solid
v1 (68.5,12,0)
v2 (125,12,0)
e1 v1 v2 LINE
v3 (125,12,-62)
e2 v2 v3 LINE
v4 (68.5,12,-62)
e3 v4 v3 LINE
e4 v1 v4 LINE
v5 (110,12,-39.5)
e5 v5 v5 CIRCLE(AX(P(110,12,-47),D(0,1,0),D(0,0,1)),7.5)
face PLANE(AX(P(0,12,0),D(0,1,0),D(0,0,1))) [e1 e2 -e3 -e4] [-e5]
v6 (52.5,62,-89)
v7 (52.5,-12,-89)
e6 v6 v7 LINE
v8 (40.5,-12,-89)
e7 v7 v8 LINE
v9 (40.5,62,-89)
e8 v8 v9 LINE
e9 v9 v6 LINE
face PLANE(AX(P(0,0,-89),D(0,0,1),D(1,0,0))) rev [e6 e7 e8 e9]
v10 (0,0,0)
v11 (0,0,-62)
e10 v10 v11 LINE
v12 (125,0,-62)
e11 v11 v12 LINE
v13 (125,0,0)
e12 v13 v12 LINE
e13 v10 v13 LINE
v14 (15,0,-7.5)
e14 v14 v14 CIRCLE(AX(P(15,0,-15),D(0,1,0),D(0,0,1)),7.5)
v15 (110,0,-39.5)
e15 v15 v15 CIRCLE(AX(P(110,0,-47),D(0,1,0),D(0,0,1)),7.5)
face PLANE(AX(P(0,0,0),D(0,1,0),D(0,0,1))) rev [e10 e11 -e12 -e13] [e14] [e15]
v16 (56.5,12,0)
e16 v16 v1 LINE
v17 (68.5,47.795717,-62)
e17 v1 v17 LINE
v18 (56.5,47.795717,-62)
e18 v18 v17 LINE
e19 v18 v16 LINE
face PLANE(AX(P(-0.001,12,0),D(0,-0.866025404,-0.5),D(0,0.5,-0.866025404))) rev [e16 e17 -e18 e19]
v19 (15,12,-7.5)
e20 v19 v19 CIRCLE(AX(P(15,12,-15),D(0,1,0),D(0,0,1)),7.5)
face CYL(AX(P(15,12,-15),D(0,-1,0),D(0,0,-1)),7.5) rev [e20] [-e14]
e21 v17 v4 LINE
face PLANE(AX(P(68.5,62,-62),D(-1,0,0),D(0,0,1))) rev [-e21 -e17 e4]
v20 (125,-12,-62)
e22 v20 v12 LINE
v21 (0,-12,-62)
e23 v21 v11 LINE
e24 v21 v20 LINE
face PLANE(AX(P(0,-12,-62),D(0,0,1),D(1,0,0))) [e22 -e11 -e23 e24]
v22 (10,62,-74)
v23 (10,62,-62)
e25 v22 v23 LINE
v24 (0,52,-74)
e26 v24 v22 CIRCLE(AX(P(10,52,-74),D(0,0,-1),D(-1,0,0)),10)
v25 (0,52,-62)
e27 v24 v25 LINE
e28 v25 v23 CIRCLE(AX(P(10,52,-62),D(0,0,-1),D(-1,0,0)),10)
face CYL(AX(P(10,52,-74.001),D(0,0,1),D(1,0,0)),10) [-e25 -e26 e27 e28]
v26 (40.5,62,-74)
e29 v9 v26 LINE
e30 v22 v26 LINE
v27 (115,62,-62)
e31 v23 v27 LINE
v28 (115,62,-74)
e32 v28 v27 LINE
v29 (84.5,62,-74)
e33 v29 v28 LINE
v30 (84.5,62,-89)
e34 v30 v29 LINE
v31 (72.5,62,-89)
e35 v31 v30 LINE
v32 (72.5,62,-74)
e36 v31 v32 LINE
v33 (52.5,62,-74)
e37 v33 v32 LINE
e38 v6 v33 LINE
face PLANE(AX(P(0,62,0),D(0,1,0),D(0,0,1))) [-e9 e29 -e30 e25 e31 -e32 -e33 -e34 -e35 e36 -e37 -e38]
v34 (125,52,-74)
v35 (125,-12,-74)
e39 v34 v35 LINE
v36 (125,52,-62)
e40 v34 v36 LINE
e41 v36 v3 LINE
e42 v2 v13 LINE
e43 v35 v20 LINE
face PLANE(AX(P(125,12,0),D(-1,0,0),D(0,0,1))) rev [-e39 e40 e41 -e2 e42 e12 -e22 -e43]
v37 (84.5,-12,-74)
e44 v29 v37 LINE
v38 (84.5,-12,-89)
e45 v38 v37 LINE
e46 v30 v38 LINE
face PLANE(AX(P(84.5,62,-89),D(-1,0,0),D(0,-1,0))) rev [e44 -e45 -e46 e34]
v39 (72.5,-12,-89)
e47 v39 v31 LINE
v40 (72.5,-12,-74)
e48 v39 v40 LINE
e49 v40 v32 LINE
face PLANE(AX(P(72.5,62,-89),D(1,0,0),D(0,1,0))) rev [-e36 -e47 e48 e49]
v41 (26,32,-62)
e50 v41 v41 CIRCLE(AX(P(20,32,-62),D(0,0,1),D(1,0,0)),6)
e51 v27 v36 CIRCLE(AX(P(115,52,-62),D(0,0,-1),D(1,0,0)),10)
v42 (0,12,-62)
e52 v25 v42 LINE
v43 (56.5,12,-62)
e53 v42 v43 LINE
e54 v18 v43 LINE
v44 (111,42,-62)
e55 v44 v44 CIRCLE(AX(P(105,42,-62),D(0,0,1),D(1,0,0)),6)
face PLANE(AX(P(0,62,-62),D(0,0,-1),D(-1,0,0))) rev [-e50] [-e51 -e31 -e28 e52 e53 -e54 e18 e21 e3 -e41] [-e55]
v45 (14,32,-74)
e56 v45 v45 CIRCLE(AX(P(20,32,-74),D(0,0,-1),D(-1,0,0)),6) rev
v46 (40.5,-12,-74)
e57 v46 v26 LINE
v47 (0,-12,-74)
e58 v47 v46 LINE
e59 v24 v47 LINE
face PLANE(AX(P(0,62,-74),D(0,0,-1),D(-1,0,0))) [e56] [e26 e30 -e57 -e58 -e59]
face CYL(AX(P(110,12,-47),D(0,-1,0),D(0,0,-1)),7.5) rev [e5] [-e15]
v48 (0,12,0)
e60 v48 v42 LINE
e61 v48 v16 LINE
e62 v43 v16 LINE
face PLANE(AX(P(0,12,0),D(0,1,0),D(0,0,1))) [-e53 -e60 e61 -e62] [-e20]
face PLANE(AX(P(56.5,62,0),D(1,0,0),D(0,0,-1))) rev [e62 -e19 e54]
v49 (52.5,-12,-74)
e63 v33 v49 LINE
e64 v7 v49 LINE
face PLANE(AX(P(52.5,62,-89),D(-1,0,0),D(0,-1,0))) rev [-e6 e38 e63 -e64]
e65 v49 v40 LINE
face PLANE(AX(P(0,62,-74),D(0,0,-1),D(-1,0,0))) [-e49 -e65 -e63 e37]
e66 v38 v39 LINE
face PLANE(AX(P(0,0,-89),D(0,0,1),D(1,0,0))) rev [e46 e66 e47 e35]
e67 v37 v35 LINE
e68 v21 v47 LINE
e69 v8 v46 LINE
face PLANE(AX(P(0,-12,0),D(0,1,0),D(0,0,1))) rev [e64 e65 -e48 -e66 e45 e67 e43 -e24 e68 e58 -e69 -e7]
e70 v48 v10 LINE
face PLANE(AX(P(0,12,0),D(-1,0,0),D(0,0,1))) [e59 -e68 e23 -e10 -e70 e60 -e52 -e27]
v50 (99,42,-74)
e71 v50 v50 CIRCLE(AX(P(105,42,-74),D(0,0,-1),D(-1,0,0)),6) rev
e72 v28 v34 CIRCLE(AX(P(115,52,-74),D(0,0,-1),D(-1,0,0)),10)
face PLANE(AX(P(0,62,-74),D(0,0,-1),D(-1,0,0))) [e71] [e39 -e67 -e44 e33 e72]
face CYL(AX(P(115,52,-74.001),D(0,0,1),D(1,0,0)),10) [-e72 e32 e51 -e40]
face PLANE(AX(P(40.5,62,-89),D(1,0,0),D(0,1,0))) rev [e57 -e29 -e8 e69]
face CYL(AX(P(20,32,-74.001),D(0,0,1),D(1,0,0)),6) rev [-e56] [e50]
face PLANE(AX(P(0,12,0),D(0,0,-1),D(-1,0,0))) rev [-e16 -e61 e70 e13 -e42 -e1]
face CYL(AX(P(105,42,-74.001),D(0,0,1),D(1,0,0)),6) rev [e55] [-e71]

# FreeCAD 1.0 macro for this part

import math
import FreeCAD as App
import Part
import Sketcher
from FreeCAD import Vector
Q = App.Units.Quantity

doc = App.newDocument("Part")
body = doc.addObject("PartDesign::Body", "Body")

# Sketch on XZ plane
sketch1 = body.newObject("Sketcher::SketchObject", "Sketch")
sketch1.AttachmentSupport = (doc.getObject("XZ_Plane"), [""])
sketch1.MapMode = "FlatFace"
sketch1.addGeometry([
    Part.LineSegment(Vector(0, -62, 0), Vector(0, 0, 0)),  # 0
    Part.LineSegment(Vector(0, 0, 0), Vector(125, 0, 0)),  # 1
    Part.LineSegment(Vector(125, 0, 0), Vector(125, -62, 0)),  # 2
    Part.LineSegment(Vector(125, -62, 0), Vector(0, -62, 0)),  # 3
    Part.Circle(Vector(15, -15, 0), Vector(0, 0, 1), 7.5),  # 4
    Part.Circle(Vector(110, -47, 0), Vector(0, 0, 1), 7.5),  # 5
], False)
sketch1.addConstraint([
    Sketcher.Constraint("Coincident", 0, 2, 1, 1),
    Sketcher.Constraint("Coincident", 1, 2, 2, 1),
    Sketcher.Constraint("Coincident", 2, 2, 3, 1),
    Sketcher.Constraint("Coincident", 3, 2, 0, 1),
    Sketcher.Constraint("Vertical", 0),
    Sketcher.Constraint("Horizontal", 1),
    Sketcher.Constraint("Vertical", 2),
    Sketcher.Constraint("Horizontal", 3),
    Sketcher.Constraint("Coincident", 0, 2, -1, 1),
    Sketcher.Constraint("Equal", 4, 5),
    Sketcher.Constraint("Diameter", 4, Q("15 mm")),
    Sketcher.Constraint("DistanceX", 1, 1, 1, 2, Q("125 mm")),
    Sketcher.Constraint("DistanceY", 0, 1, 0, 2, Q("62 mm")),
    Sketcher.Constraint("DistanceX", -1, 1, 4, 3, Q("15 mm")),
    Sketcher.Constraint("DistanceY", 4, 3, -1, 1, Q("15 mm")),
    Sketcher.Constraint("DistanceX", -1, 1, 5, 3, Q("110 mm")),
    Sketcher.Constraint("DistanceY", 5, 3, -1, 1, Q("47 mm")),
])
pad1 = body.newObject("PartDesign::Pad", "Pad")
pad1.Profile = sketch1
pad1.Length = 12
pad1.Reversed = True

# Sketch on XZ plane
sketch2 = body.newObject("Sketcher::SketchObject", "Sketch001")
sketch2.AttachmentSupport = (doc.getObject("XZ_Plane"), [""])
sketch2.MapMode = "FlatFace"
sketch2.addGeometry([
    Part.LineSegment(Vector(0, -74, 0), Vector(0, -62, 0)),
    Part.LineSegment(Vector(0, -62, 0), Vector(125, -62, 0)),
    Part.LineSegment(Vector(125, -62, 0), Vector(125, -74, 0)),
    Part.LineSegment(Vector(125, -74, 0), Vector(0, -74, 0)),
], False)
sketch2.addConstraint([
    Sketcher.Constraint("Coincident", 0, 2, 1, 1),
    Sketcher.Constraint("Coincident", 1, 2, 2, 1),
    Sketcher.Constraint("Coincident", 2, 2, 3, 1),
    Sketcher.Constraint("Coincident", 3, 2, 0, 1),
    Sketcher.Constraint("Vertical", 0),
    Sketcher.Constraint("Horizontal", 1),
    Sketcher.Constraint("Vertical", 2),
    Sketcher.Constraint("Horizontal", 3),
    Sketcher.Constraint("PointOnObject", 0, 2, -2),
    Sketcher.Constraint("DistanceX", 1, 1, 1, 2, Q("125 mm")),
    Sketcher.Constraint("DistanceY", 0, 1, 0, 2, Q("12 mm")),
    Sketcher.Constraint("DistanceY", 0, 2, -1, 1, Q("62 mm")),
])
pad2 = body.newObject("PartDesign::Pad", "Pad001")
pad2.Profile = sketch2
pad2.Length = 62
pad2.Reversed = True

# Sketch on XZ plane
sketch3 = body.newObject("Sketcher::SketchObject", "Sketch002")
sketch3.AttachmentSupport = (doc.getObject("XZ_Plane"), [""])
sketch3.MapMode = "FlatFace"
sketch3.addGeometry([
    Part.LineSegment(Vector(0, -74, 0), Vector(0, -62, 0)),
    Part.LineSegment(Vector(0, -62, 0), Vector(125, -62, 0)),
    Part.LineSegment(Vector(125, -62, 0), Vector(125, -74, 0)),
    Part.LineSegment(Vector(125, -74, 0), Vector(0, -74, 0)),
], False)
sketch3.addConstraint([
    Sketcher.Constraint("Coincident", 0, 2, 1, 1),
    Sketcher.Constraint("Coincident", 1, 2, 2, 1),
    Sketcher.Constraint("Coincident", 2, 2, 3, 1),
    Sketcher.Constraint("Coincident", 3, 2, 0, 1),
    Sketcher.Constraint("Vertical", 0),
    Sketcher.Constraint("Horizontal", 1),
    Sketcher.Constraint("Vertical", 2),
    Sketcher.Constraint("Horizontal", 3),
    Sketcher.Constraint("PointOnObject", 0, 2, -2),
    Sketcher.Constraint("DistanceX", 1, 1, 1, 2, Q("125 mm")),
    Sketcher.Constraint("DistanceY", 0, 1, 0, 2, Q("12 mm")),
    Sketcher.Constraint("DistanceY", 0, 2, -1, 1, Q("62 mm")),
])
pad3 = body.newObject("PartDesign::Pad", "Pad002")
pad3.Profile = sketch3
pad3.Length = 12

# Sketch on XY plane
sketch4 = body.newObject("Sketcher::SketchObject", "Sketch003")
sketch4.AttachmentSupport = (doc.getObject("XY_Plane"), [""])
sketch4.MapMode = "FlatFace"
sketch4.AttachmentOffset = App.Placement(Vector(0, 0, -62), App.Rotation())
sketch4.addGeometry(Part.Circle(Vector(105, 42, 0), Vector(0, 0, 1), 6), False)
sketch4.addConstraint([
    Sketcher.Constraint("Diameter", 0, Q("12 mm")),
    Sketcher.Constraint("DistanceX", -1, 1, 0, 3, Q("105 mm")),
    Sketcher.Constraint("DistanceY", -1, 1, 0, 3, Q("42 mm")),
])
pocket1 = body.newObject("PartDesign::Pocket", "Pocket")
pocket1.Profile = sketch4
pocket1.Type = "UpToFirst"

# Sketch on XY plane
sketch5 = body.newObject("Sketcher::SketchObject", "Sketch004")
sketch5.AttachmentSupport = (doc.getObject("XY_Plane"), [""])
sketch5.MapMode = "FlatFace"
sketch5.AttachmentOffset = App.Placement(Vector(0, 0, -62), App.Rotation())
sketch5.addGeometry(Part.Circle(Vector(20, 32, 0), Vector(0, 0, 1), 6), False)
sketch5.addConstraint([
    Sketcher.Constraint("Diameter", 0, Q("12 mm")),
    Sketcher.Constraint("DistanceX", -1, 1, 0, 3, Q("20 mm")),
    Sketcher.Constraint("DistanceY", -1, 1, 0, 3, Q("32 mm")),
])
pocket2 = body.newObject("PartDesign::Pocket", "Pocket001")
pocket2.Profile = sketch5
pocket2.Type = "UpToFirst"

# Sketch on XY plane
sketch6 = body.newObject("Sketcher::SketchObject", "Sketch005")
sketch6.AttachmentSupport = (doc.getObject("XY_Plane"), [""])
sketch6.MapMode = "FlatFace"
sketch6.AttachmentOffset = App.Placement(Vector(0, 0, -62), App.Rotation())
sketch6.addGeometry([
    Part.LineSegment(Vector(125, 62, 0), Vector(115, 62, 0)),
    Part.ArcOfCircle(Part.Circle(Vector(115, 52, 0), Vector(0, 0, 1), 10), math.radians(0), math.radians(90)),
    Part.LineSegment(Vector(125, 52, 0), Vector(125, 62, 0)),
], False)
sketch6.addConstraint([
    Sketcher.Constraint("Tangent", 0, 2, 1, 2),
    Sketcher.Constraint("Tangent", 1, 1, 2, 1),
    Sketcher.Constraint("Coincident", 2, 2, 0, 1),
    Sketcher.Constraint("Horizontal", 0),
    Sketcher.Constraint("Vertical", 2),
    Sketcher.Constraint("Radius", 1, Q("10 mm")),
    Sketcher.Constraint("DistanceX", -1, 1, 1, 3, Q("115 mm")),
    Sketcher.Constraint("DistanceY", -1, 1, 1, 3, Q("52 mm")),
])
pocket3 = body.newObject("PartDesign::Pocket", "Pocket002")
pocket3.Profile = sketch6
pocket3.Type = "UpToFirst"

# Sketch on XY plane
sketch7 = body.newObject("Sketcher::SketchObject", "Sketch006")
sketch7.AttachmentSupport = (doc.getObject("XY_Plane"), [""])
sketch7.MapMode = "FlatFace"
sketch7.AttachmentOffset = App.Placement(Vector(0, 0, -62), App.Rotation())
sketch7.addGeometry([
    Part.LineSegment(Vector(0, 62, 0), Vector(0, 52, 0)),
    Part.ArcOfCircle(Part.Circle(Vector(10, 52, 0), Vector(0, 0, 1), 10), math.radians(90), math.radians(180)),
    Part.LineSegment(Vector(10, 62, 0), Vector(0, 62, 0)),
], False)
sketch7.addConstraint([
    Sketcher.Constraint("Tangent", 0, 2, 1, 2),
    Sketcher.Constraint("Tangent", 1, 1, 2, 1),
    Sketcher.Constraint("Coincident", 2, 2, 0, 1),
    Sketcher.Constraint("Vertical", 0),
    Sketcher.Constraint("Horizontal", 2),
    Sketcher.Constraint("PointOnObject", 0, 2, -2),
    Sketcher.Constraint("Radius", 1, Q("10 mm")),
    Sketcher.Constraint("DistanceY", -1, 1, 1, 3, Q("52 mm")),
])
pocket4 = body.newObject("PartDesign::Pocket", "Pocket003")
pocket4.Profile = sketch7
pocket4.Type = "UpToFirst"

# Sketch on XY plane
sketch8 = body.newObject("Sketcher::SketchObject", "Sketch007")
sketch8.AttachmentSupport = (doc.getObject("XY_Plane"), [""])
sketch8.MapMode = "FlatFace"
sketch8.AttachmentOffset = App.Placement(Vector(0, 0, -74), App.Rotation())
sketch8.addGeometry([
    Part.LineSegment(Vector(84.5, 62, 0), Vector(84.5, -12, 0)),  # 0
    Part.LineSegment(Vector(84.5, -12, 0), Vector(72.5, -12, 0)),  # 1
    Part.LineSegment(Vector(72.5, -12, 0), Vector(72.5, 62, 0)),  # 2
    Part.LineSegment(Vector(72.5, 62, 0), Vector(84.5, 62, 0)),  # 3
    Part.LineSegment(Vector(52.5, 62, 0), Vector(52.5, -12, 0)),  # 4
    Part.LineSegment(Vector(52.5, -12, 0), Vector(40.5, -12, 0)),  # 5
    Part.LineSegment(Vector(40.5, -12, 0), Vector(40.5, 62, 0)),  # 6
    Part.LineSegment(Vector(40.5, 62, 0), Vector(52.5, 62, 0)),  # 7
], False)
sketch8.addConstraint([
    Sketcher.Constraint("Coincident", 0, 2, 1, 1),
    Sketcher.Constraint("Coincident", 1, 2, 2, 1),
    Sketcher.Constraint("Coincident", 2, 2, 3, 1),
    Sketcher.Constraint("Coincident", 3, 2, 0, 1),
    Sketcher.Constraint("Coincident", 4, 2, 5, 1),
    Sketcher.Constraint("Coincident", 5, 2, 6, 1),
    Sketcher.Constraint("Coincident", 6, 2, 7, 1),
    Sketcher.Constraint("Coincident", 7, 2, 4, 1),
    Sketcher.Constraint("Vertical", 0),
    Sketcher.Constraint("Horizontal", 1),
    Sketcher.Constraint("Vertical", 2),
    Sketcher.Constraint("Horizontal", 3),
    Sketcher.Constraint("Vertical", 4),
    Sketcher.Constraint("Horizontal", 5),
    Sketcher.Constraint("Vertical", 6),
    Sketcher.Constraint("Horizontal", 7),
    Sketcher.Constraint("Horizontal", 1, 2, 4, 2),
    Sketcher.Constraint("Horizontal", 3, 2, 6, 2),
    Sketcher.Constraint("Equal", 3, 5),
    Sketcher.Constraint("DistanceX", 1, 2, 1, 1, Q("12 mm")),
    Sketcher.Constraint("DistanceY", 0, 2, 0, 1, Q("74 mm")),
    Sketcher.Constraint("DistanceY", 0, 2, -1, 1, Q("12 mm")),
    Sketcher.Constraint("DistanceX", 4, 2, 1, 2, Q("20 mm")),
    Sketcher.Constraint("DistanceX", -1, 1, 0, 2, Q("84.5 mm")),
])
pad4 = body.newObject("PartDesign::Pad", "Pad003")
pad4.Profile = sketch8
pad4.Length = 15
pad4.Reversed = True

# Sketch on XZ plane
sketch9 = body.newObject("Sketcher::SketchObject", "Sketch008")
sketch9.AttachmentSupport = (doc.getObject("XZ_Plane"), [""])
sketch9.MapMode = "FlatFace"
sketch9.AttachmentOffset = App.Placement(Vector(0, 0, -12), App.Rotation())
sketch9.addGeometry([
    Part.LineSegment(Vector(56.5, -62, 0), Vector(56.5, 0, 0)),
    Part.LineSegment(Vector(56.5, 0, 0), Vector(68.5, 0, 0)),
    Part.LineSegment(Vector(68.5, 0, 0), Vector(68.5, -62, 0)),
    Part.LineSegment(Vector(68.5, -62, 0), Vector(56.5, -62, 0)),
], False)
sketch9.addConstraint([
    Sketcher.Constraint("Coincident", 0, 2, 1, 1),
    Sketcher.Constraint("Coincident", 1, 2, 2, 1),
    Sketcher.Constraint("Coincident", 2, 2, 3, 1),
    Sketcher.Constraint("Coincident", 3, 2, 0, 1),
    Sketcher.Constraint("Vertical", 0),
    Sketcher.Constraint("Horizontal", 1),
    Sketcher.Constraint("Vertical", 2),
    Sketcher.Constraint("Horizontal", 3),
    Sketcher.Constraint("PointOnObject", 0, 2, -1),
    Sketcher.Constraint("DistanceX", 1, 1, 1, 2, Q("12 mm")),
    Sketcher.Constraint("DistanceY", 0, 1, 0, 2, Q("62 mm")),
    Sketcher.Constraint("DistanceX", -1, 1, 0, 2, Q("56.5 mm")),
])
pad5 = body.newObject("PartDesign::Pad", "Pad004")
pad5.Profile = sketch9
pad5.Length = 50
pad5.Reversed = True

# Sketch on YZ plane
sketch10 = body.newObject("Sketcher::SketchObject", "Sketch009")
sketch10.AttachmentSupport = (doc.getObject("YZ_Plane"), [""])
sketch10.MapMode = "FlatFace"
sketch10.AttachmentOffset = App.Placement(Vector(0, 0, 68.5), App.Rotation())
sketch10.addGeometry([
    Part.LineSegment(Vector(12, 0, 0), Vector(47.795717, -62, 0)),
    Part.LineSegment(Vector(47.795717, -62, 0), Vector(62, -62, 0)),
    Part.LineSegment(Vector(62, -62, 0), Vector(62, 0, 0)),
    Part.LineSegment(Vector(62, 0, 0), Vector(12, 0, 0)),
], False)
sketch10.addConstraint([
    Sketcher.Constraint("Coincident", 0, 2, 1, 1),
    Sketcher.Constraint("Coincident", 1, 2, 2, 1),
    Sketcher.Constraint("Coincident", 2, 2, 3, 1),
    Sketcher.Constraint("Coincident", 3, 2, 0, 1),
    Sketcher.Constraint("Horizontal", 1),
    Sketcher.Constraint("Vertical", 2),
    Sketcher.Constraint("Horizontal", 3),
    Sketcher.Constraint("PointOnObject", 2, 2, -1),
    Sketcher.Constraint("DistanceX", 3, 2, 3, 1, Q("50 mm")),
    Sketcher.Constraint("DistanceY", 2, 1, 2, 2, Q("62 mm")),
    Sketcher.Constraint("Angle", 0, Q("-60 deg")),
    Sketcher.Constraint("DistanceX", -1, 1, 1, 2, Q("62 mm")),
])
pocket5 = body.newObject("PartDesign::Pocket", "Pocket004")
pocket5.Profile = sketch10
pocket5.Type = "UpToFirst"

doc.recompute()
